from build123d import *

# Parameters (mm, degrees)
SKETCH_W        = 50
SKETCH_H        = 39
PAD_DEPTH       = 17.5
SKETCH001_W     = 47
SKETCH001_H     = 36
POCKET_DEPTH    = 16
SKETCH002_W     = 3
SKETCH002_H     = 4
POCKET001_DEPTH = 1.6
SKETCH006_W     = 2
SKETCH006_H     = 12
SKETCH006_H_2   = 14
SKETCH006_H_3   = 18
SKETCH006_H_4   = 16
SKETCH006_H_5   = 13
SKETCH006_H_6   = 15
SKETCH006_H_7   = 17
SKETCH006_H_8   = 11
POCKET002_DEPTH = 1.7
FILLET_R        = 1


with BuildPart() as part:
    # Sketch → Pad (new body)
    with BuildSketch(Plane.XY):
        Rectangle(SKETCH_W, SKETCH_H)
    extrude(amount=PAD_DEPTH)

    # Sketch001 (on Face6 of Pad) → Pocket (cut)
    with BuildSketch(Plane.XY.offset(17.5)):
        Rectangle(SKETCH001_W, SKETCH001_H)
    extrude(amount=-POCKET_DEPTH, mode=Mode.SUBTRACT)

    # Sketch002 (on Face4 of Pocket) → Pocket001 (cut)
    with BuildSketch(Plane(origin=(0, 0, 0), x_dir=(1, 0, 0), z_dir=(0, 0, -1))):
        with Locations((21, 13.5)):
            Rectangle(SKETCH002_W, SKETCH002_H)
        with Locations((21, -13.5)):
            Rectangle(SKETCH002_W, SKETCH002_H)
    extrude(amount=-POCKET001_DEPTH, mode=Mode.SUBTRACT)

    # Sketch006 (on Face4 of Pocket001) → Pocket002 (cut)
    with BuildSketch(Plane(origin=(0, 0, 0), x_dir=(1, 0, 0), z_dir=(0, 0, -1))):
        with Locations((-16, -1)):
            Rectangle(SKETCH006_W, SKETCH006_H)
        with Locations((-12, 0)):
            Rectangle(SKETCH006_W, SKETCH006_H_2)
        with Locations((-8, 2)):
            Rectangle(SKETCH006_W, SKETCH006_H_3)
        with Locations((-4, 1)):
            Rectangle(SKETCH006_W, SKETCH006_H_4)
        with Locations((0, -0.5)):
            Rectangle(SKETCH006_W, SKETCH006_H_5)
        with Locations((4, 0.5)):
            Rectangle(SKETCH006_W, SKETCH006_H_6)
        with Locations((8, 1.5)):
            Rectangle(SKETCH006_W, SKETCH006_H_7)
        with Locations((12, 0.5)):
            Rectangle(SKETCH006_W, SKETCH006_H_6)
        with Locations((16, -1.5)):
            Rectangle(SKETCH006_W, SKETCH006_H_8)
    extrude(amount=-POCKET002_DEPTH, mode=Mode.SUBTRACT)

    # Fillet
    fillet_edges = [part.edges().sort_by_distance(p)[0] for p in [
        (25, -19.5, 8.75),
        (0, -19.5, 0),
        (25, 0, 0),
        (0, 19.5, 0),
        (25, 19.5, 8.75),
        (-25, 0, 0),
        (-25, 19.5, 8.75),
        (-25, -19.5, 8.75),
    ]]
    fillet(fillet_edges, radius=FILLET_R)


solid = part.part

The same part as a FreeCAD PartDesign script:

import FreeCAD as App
import Part
import Sketcher
Q = App.Units.Quantity


def edges_at(feature, points):
    """Names of the edges that pass closest to the given points."""
    edges = feature.Shape.Edges
    near = lambda p: min(range(len(edges)), key=lambda i: edges[i].distToShape(Part.Vertex(*p))[0])
    return sorted({f"Edge{near(p) + 1}" for p in points})

doc = App.newDocument("Part")
body = doc.addObject("PartDesign::Body", "Body")

sketch1 = body.newObject("Sketcher::SketchObject", "Sketch")
sketch1.AttachmentSupport = (doc.getObject("XY_Plane"), [""])
sketch1.MapMode = "FlatFace"
sketch1.addGeometry([
    Part.LineSegment(App.Vector(-25, 20, 0), App.Vector(-25, -20, 0)),
    Part.LineSegment(App.Vector(-25, -20, 0), App.Vector(25, -20, 0)),
    Part.LineSegment(App.Vector(25, -20, 0), App.Vector(25, 20, 0)),
    Part.LineSegment(App.Vector(25, 20, 0), App.Vector(-25, 20, 0)),
], False)
sketch1.addConstraint([
    Sketcher.Constraint("Coincident", 0, 2, 1, 1),
    Sketcher.Constraint("Coincident", 1, 2, 2, 1),
    Sketcher.Constraint("Coincident", 2, 2, 3, 1),
    Sketcher.Constraint("Coincident", 3, 2, 0, 1),
    Sketcher.Constraint("Vertical", 0),
    Sketcher.Constraint("Horizontal", 1),
    Sketcher.Constraint("Vertical", 2),
    Sketcher.Constraint("Horizontal", 3),
    Sketcher.Constraint("Symmetric", 0, 2, 2, 2, -1, 1),
    Sketcher.Constraint("DistanceX", 1, 1, 1, 2, Q("50 mm")),
    Sketcher.Constraint("DistanceY", 0, 2, 0, 1, Q("39 mm")),
])
pad1 = body.newObject("PartDesign::Pad", "Pad")
pad1.Profile = sketch1
pad1.Length = 17.5

sketch2 = body.newObject("Sketcher::SketchObject", "Sketch001")
sketch2.AttachmentSupport = (doc.getObject("XY_Plane"), [""])
sketch2.MapMode = "FlatFace"
sketch2.AttachmentOffset = App.Placement(App.Vector(0, 0, 17.5), App.Rotation())
sketch2.addGeometry([
    Part.LineSegment(App.Vector(-24, 18, 0), App.Vector(-24, -18, 0)),
    Part.LineSegment(App.Vector(-24, -18, 0), App.Vector(24, -18, 0)),
    Part.LineSegment(App.Vector(24, -18, 0), App.Vector(24, 18, 0)),
    Part.LineSegment(App.Vector(24, 18, 0), App.Vector(-24, 18, 0)),
], False)
sketch2.addConstraint([
    Sketcher.Constraint("Coincident", 0, 2, 1, 1),
    Sketcher.Constraint("Coincident", 1, 2, 2, 1),
    Sketcher.Constraint("Coincident", 2, 2, 3, 1),
    Sketcher.Constraint("Coincident", 3, 2, 0, 1),
    Sketcher.Constraint("Vertical", 0),
    Sketcher.Constraint("Horizontal", 1),
    Sketcher.Constraint("Vertical", 2),
    Sketcher.Constraint("Horizontal", 3),
    Sketcher.Constraint("Symmetric", 0, 2, 2, 2, -1, 1),
    Sketcher.Constraint("DistanceX", 1, 1, 1, 2, Q("47 mm")),
    Sketcher.Constraint("DistanceY", 0, 2, 0, 1, Q("36 mm")),
])
pocket1 = body.newObject("PartDesign::Pocket", "Pocket")
pocket1.Profile = sketch2
pocket1.Length = 16

sketch3 = body.newObject("Sketcher::SketchObject", "Sketch002")
sketch3.AttachmentSupport = (doc.getObject("XY_Plane"), [""])
sketch3.MapMode = "FlatFace"
sketch3.addGeometry([
    Part.LineSegment(App.Vector(19.5, -15.5, 0), App.Vector(19.5, -11.5, 0)),
    Part.LineSegment(App.Vector(19.5, -11.5, 0), App.Vector(22.5, -11.5, 0)),
    Part.LineSegment(App.Vector(22.5, -11.5, 0), App.Vector(22.5, -15.5, 0)),
    Part.LineSegment(App.Vector(22.5, -15.5, 0), App.Vector(19.5, -15.5, 0)),
    Part.LineSegment(App.Vector(19.5, 11.5, 0), App.Vector(19.5, 15.5, 0)),
    Part.LineSegment(App.Vector(19.5, 15.5, 0), App.Vector(22.5, 15.5, 0)),
    Part.LineSegment(App.Vector(22.5, 15.5, 0), App.Vector(22.5, 11.5, 0)),
    Part.LineSegment(App.Vector(22.5, 11.5, 0), App.Vector(19.5, 11.5, 0)),
], False)
sketch3.addConstraint([
    Sketcher.Constraint("Coincident", 0, 2, 1, 1),
    Sketcher.Constraint("Coincident", 1, 2, 2, 1),
    Sketcher.Constraint("Coincident", 2, 2, 3, 1),
    Sketcher.Constraint("Coincident", 3, 2, 0, 1),
    Sketcher.Constraint("Coincident", 4, 2, 5, 1),
    Sketcher.Constraint("Coincident", 5, 2, 6, 1),
    Sketcher.Constraint("Coincident", 6, 2, 7, 1),
    Sketcher.Constraint("Coincident", 7, 2, 4, 1),
    Sketcher.Constraint("Vertical", 0),
    Sketcher.Constraint("Horizontal", 1),
    Sketcher.Constraint("Vertical", 2),
    Sketcher.Constraint("Horizontal", 3),
    Sketcher.Constraint("Vertical", 4),
    Sketcher.Constraint("Horizontal", 5),
    Sketcher.Constraint("Vertical", 6),
    Sketcher.Constraint("Horizontal", 7),
    Sketcher.Constraint("Symmetric", 3, 2, 4, 2, -1),
    Sketcher.Constraint("Symmetric", 1, 2, 6, 2, -1),
    Sketcher.Constraint("DistanceX", 1, 1, 1, 2, Q("3 mm")),
    Sketcher.Constraint("DistanceY", 0, 1, 0, 2, Q("4 mm")),
    Sketcher.Constraint("DistanceY", 0, 2, 4, 2, Q("27 mm")),
    Sketcher.Constraint("DistanceX", -1, 1, 0, 2, Q("19.5 mm")),
])
pocket2 = body.newObject("PartDesign::Pocket", "Pocket001")
pocket2.Profile = sketch3
pocket2.Length = 1.6
pocket2.Reversed = True

sketch4 = body.newObject("Sketcher::SketchObject", "Sketch003")
sketch4.AttachmentSupport = (doc.getObject("XY_Plane"), [""])
sketch4.MapMode = "FlatFace"
sketch4.addGeometry([
    Part.LineSegment(App.Vector(-17, -5, 0), App.Vector(-17, 7, 0)),
    Part.LineSegment(App.Vector(-17, 7, 0), App.Vector(-15, 7, 0)),
    Part.LineSegment(App.Vector(-15, 7, 0), App.Vector(-15, -5, 0)),
    Part.LineSegment(App.Vector(-15, -5, 0), App.Vector(-17, -5, 0)),
    Part.LineSegment(App.Vector(-13, -7, 0), App.Vector(-13, 7, 0)),
    Part.LineSegment(App.Vector(-13, 7, 0), App.Vector(-11, 7, 0)),
    Part.LineSegment(App.Vector(-11, 7, 0), App.Vector(-11, -7, 0)),
    Part.LineSegment(App.Vector(-11, -7, 0), App.Vector(-13, -7, 0)),
    Part.LineSegment(App.Vector(-9, -11, 0), App.Vector(-9, 7, 0)),
    Part.LineSegment(App.Vector(-9, 7, 0), App.Vector(-7, 7, 0)),
    Part.LineSegment(App.Vector(-7, 7, 0), App.Vector(-7, -11, 0)),
    Part.LineSegment(App.Vector(-7, -11, 0), App.Vector(-9, -11, 0)),
    Part.LineSegment(App.Vector(-5, -9, 0), App.Vector(-5, 7, 0)),
    Part.LineSegment(App.Vector(-5, 7, 0), App.Vector(-3, 7, 0)),
    Part.LineSegment(App.Vector(-3, 7, 0), App.Vector(-3, -9, 0)),
    Part.LineSegment(App.Vector(-3, -9, 0), App.Vector(-5, -9, 0)),
    Part.LineSegment(App.Vector(-1, -6, 0), App.Vector(-1, 7, 0)),
    Part.LineSegment(App.Vector(-1, 7, 0), App.Vector(1, 7, 0)),
    Part.LineSegment(App.Vector(1, 7, 0), App.Vector(1, -6, 0)),
    Part.LineSegment(App.Vector(1, -6, 0), App.Vector(-1, -6, 0)),
    Part.LineSegment(App.Vector(3, -8, 0), App.Vector(3, 7, 0)),
    Part.LineSegment(App.Vector(3, 7, 0), App.Vector(5, 7, 0)),
    Part.LineSegment(App.Vector(5, 7, 0), App.Vector(5, -8, 0)),
    Part.LineSegment(App.Vector(5, -8, 0), App.Vector(3, -8, 0)),
    Part.LineSegment(App.Vector(7, -10, 0), App.Vector(7, 7, 0)),
    Part.LineSegment(App.Vector(7, 7, 0), App.Vector(9, 7, 0)),
    Part.LineSegment(App.Vector(9, 7, 0), App.Vector(9, -10, 0)),
    Part.LineSegment(App.Vector(9, -10, 0), App.Vector(7, -10, 0)),
    Part.LineSegment(App.Vector(11, -8, 0), App.Vector(11, 7, 0)),
    Part.LineSegment(App.Vector(11, 7, 0), App.Vector(13, 7, 0)),
    Part.LineSegment(App.Vector(13, 7, 0), App.Vector(13, -8, 0)),
    Part.LineSegment(App.Vector(13, -8, 0), App.Vector(11, -8, 0)),
    Part.LineSegment(App.Vector(15, -4, 0), App.Vector(15, 7, 0)),
    Part.LineSegment(App.Vector(15, 7, 0), App.Vector(17, 7, 0)),
    Part.LineSegment(App.Vector(17, 7, 0), App.Vector(17, -4, 0)),
    Part.LineSegment(App.Vector(17, -4, 0), App.Vector(15, -4, 0)),
], False)
sketch4.addConstraint([
    Sketcher.Constraint("Coincident", 0, 2, 1, 1),
    Sketcher.Constraint("Coincident", 1, 2, 2, 1),
    Sketcher.Constraint("Coincident", 2, 2, 3, 1),
    Sketcher.Constraint("Coincident", 3, 2, 0, 1),
    Sketcher.Constraint("Coincident", 4, 2, 5, 1),
    Sketcher.Constraint("Coincident", 5, 2, 6, 1),
    Sketcher.Constraint("Coincident", 6, 2, 7, 1),
    Sketcher.Constraint("Coincident", 7, 2, 4, 1),
    Sketcher.Constraint("Coincident", 8, 2, 9, 1),
    Sketcher.Constraint("Coincident", 9, 2, 10, 1),
    Sketcher.Constraint("Coincident", 10, 2, 11, 1),
    Sketcher.Constraint("Coincident", 11, 2, 8, 1),
    Sketcher.Constraint("Coincident", 12, 2, 13, 1),
    Sketcher.Constraint("Coincident", 13, 2, 14, 1),
    Sketcher.Constraint("Coincident", 14, 2, 15, 1),
    Sketcher.Constraint("Coincident", 15, 2, 12, 1),
    Sketcher.Constraint("Coincident", 16, 2, 17, 1),
    Sketcher.Constraint("Coincident", 17, 2, 18, 1),
    Sketcher.Constraint("Coincident", 18, 2, 19, 1),
    Sketcher.Constraint("Coincident", 19, 2, 16, 1),
    Sketcher.Constraint("Coincident", 20, 2, 21, 1),
    Sketcher.Constraint("Coincident", 21, 2, 22, 1),
    Sketcher.Constraint("Coincident", 22, 2, 23, 1),
    Sketcher.Constraint("Coincident", 23, 2, 20, 1),
    Sketcher.Constraint("Coincident", 24, 2, 25, 1),
    Sketcher.Constraint("Coincident", 25, 2, 26, 1),
    Sketcher.Constraint("Coincident", 26, 2, 27, 1),
    Sketcher.Constraint("Coincident", 27, 2, 24, 1),
    Sketcher.Constraint("Coincident", 28, 2, 29, 1),
    Sketcher.Constraint("Coincident", 29, 2, 30, 1),
    Sketcher.Constraint("Coincident", 30, 2, 31, 1),
    Sketcher.Constraint("Coincident", 31, 2, 28, 1),
    Sketcher.Constraint("Coincident", 32, 2, 33, 1),
    Sketcher.Constraint("Coincident", 33, 2, 34, 1),
    Sketcher.Constraint("Coincident", 34, 2, 35, 1),
    Sketcher.Constraint("Coincident", 35, 2, 32, 1),
    Sketcher.Constraint("Vertical", 0),
    Sketcher.Constraint("Horizontal", 1),
    Sketcher.Constraint("Vertical", 2),
    Sketcher.Constraint("Horizontal", 3),
    Sketcher.Constraint("Vertical", 4),
    Sketcher.Constraint("Horizontal", 5),
    Sketcher.Constraint("Vertical", 6),
    Sketcher.Constraint("Horizontal", 7),
    Sketcher.Constraint("Vertical", 8),
    Sketcher.Constraint("Horizontal", 9),
    Sketcher.Constraint("Vertical", 10),
    Sketcher.Constraint("Horizontal", 11),
    Sketcher.Constraint("Vertical", 12),
    Sketcher.Constraint("Horizontal", 13),
    Sketcher.Constraint("Vertical", 14),
    Sketcher.Constraint("Horizontal", 15),
    Sketcher.Constraint("Vertical", 16),
    Sketcher.Constraint("Horizontal", 17),
    Sketcher.Constraint("Vertical", 18),
    Sketcher.Constraint("Horizontal", 19),
    Sketcher.Constraint("Vertical", 20),
    Sketcher.Constraint("Horizontal", 21),
    Sketcher.Constraint("Vertical", 22),
    Sketcher.Constraint("Horizontal", 23),
    Sketcher.Constraint("Vertical", 24),
    Sketcher.Constraint("Horizontal", 25),
    Sketcher.Constraint("Vertical", 26),
    Sketcher.Constraint("Horizontal", 27),
    Sketcher.Constraint("Vertical", 28),
    Sketcher.Constraint("Horizontal", 29),
    Sketcher.Constraint("Vertical", 30),
    Sketcher.Constraint("Horizontal", 31),
    Sketcher.Constraint("Vertical", 32),
    Sketcher.Constraint("Horizontal", 33),
    Sketcher.Constraint("Vertical", 34),
    Sketcher.Constraint("Horizontal", 35),
    Sketcher.Constraint("Symmetric", 6, 2, 28, 2, -1, 1),
    Sketcher.Constraint("Symmetric", 13, 2, 20, 2, -2),
    Sketcher.Constraint("Symmetric", 9, 2, 24, 2, -2),
    Sketcher.Constraint("Symmetric", 4, 2, 29, 2, -2),
    Sketcher.Constraint("Symmetric", 1, 2, 32, 2, -2),
    Sketcher.Constraint("Horizontal", 1, 2, 4, 2),
    Sketcher.Constraint("Horizontal", 5, 2, 8, 2),
    Sketcher.Constraint("Horizontal", 9, 2, 12, 2),
    Sketcher.Constraint("Horizontal", 13, 2, 16, 2),
    Sketcher.Constraint("Horizontal", 23, 2, 30, 2),
    Sketcher.Constraint("Equal", 3, 5),
    Sketcher.Constraint("Equal", 7, 9),
    Sketcher.Constraint("Equal", 11, 13),
    Sketcher.Constraint("Equal", 15, 17),
    Sketcher.Constraint("Equal", 19, 21),
    Sketcher.Constraint("Equal", 23, 25),
    Sketcher.Constraint("Equal", 31, 33),
    Sketcher.Constraint("DistanceX", 1, 1, 1, 2, Q("2 mm")),
    Sketcher.Constraint("DistanceY", 0, 1, 0, 2, Q("12 mm")),
    Sketcher.Constraint("DistanceY", 4, 1, 4, 2, Q("14 mm")),
    Sketcher.Constraint("DistanceY", 8, 1, 8, 2, Q("18 mm")),
    Sketcher.Constraint("DistanceY", 12, 1, 12, 2, Q("16 mm")),
    Sketcher.Constraint("DistanceY", 16, 1, 16, 2, Q("13 mm")),
    Sketcher.Constraint("DistanceY", 20, 1, 20, 2, Q("15 mm")),
    Sketcher.Constraint("DistanceY", 24, 1, 24, 2, Q("17 mm")),
    Sketcher.Constraint("DistanceY", 32, 1, 32, 2, Q("11 mm")),
    Sketcher.Constraint("DistanceX", 0, 2, -1, 1, Q("17 mm")),
    Sketcher.Constraint("DistanceX", 4, 2, -1, 1, Q("13 mm")),
    Sketcher.Constraint("DistanceX", 8, 2, -1, 1, Q("9 mm")),
    Sketcher.Constraint("DistanceX", 12, 2, -1, 1, Q("5 mm")),
    Sketcher.Constraint("DistanceX", 16, 2, -1, 1, Q("1 mm")),
])
pocket3 = body.newObject("PartDesign::Pocket", "Pocket002")
pocket3.Profile = sketch4
pocket3.Length = 1.7
pocket3.Reversed = True
doc.recompute()

fillet = body.newObject("PartDesign::Fillet", "Fillet")
fillet.Base = (pocket3, edges_at(pocket3, [
    (25, -19.5, 8.75),
    (0, -19.5, 0),
    (25, 0, 0),
    (0, 19.5, 0),
    (25, 19.5, 8.75),
    (-25, 0, 0),
    (-25, 19.5, 8.75),
    (-25, -19.5, 8.75),
]))
fillet.Radius = 1

doc.recompute()
